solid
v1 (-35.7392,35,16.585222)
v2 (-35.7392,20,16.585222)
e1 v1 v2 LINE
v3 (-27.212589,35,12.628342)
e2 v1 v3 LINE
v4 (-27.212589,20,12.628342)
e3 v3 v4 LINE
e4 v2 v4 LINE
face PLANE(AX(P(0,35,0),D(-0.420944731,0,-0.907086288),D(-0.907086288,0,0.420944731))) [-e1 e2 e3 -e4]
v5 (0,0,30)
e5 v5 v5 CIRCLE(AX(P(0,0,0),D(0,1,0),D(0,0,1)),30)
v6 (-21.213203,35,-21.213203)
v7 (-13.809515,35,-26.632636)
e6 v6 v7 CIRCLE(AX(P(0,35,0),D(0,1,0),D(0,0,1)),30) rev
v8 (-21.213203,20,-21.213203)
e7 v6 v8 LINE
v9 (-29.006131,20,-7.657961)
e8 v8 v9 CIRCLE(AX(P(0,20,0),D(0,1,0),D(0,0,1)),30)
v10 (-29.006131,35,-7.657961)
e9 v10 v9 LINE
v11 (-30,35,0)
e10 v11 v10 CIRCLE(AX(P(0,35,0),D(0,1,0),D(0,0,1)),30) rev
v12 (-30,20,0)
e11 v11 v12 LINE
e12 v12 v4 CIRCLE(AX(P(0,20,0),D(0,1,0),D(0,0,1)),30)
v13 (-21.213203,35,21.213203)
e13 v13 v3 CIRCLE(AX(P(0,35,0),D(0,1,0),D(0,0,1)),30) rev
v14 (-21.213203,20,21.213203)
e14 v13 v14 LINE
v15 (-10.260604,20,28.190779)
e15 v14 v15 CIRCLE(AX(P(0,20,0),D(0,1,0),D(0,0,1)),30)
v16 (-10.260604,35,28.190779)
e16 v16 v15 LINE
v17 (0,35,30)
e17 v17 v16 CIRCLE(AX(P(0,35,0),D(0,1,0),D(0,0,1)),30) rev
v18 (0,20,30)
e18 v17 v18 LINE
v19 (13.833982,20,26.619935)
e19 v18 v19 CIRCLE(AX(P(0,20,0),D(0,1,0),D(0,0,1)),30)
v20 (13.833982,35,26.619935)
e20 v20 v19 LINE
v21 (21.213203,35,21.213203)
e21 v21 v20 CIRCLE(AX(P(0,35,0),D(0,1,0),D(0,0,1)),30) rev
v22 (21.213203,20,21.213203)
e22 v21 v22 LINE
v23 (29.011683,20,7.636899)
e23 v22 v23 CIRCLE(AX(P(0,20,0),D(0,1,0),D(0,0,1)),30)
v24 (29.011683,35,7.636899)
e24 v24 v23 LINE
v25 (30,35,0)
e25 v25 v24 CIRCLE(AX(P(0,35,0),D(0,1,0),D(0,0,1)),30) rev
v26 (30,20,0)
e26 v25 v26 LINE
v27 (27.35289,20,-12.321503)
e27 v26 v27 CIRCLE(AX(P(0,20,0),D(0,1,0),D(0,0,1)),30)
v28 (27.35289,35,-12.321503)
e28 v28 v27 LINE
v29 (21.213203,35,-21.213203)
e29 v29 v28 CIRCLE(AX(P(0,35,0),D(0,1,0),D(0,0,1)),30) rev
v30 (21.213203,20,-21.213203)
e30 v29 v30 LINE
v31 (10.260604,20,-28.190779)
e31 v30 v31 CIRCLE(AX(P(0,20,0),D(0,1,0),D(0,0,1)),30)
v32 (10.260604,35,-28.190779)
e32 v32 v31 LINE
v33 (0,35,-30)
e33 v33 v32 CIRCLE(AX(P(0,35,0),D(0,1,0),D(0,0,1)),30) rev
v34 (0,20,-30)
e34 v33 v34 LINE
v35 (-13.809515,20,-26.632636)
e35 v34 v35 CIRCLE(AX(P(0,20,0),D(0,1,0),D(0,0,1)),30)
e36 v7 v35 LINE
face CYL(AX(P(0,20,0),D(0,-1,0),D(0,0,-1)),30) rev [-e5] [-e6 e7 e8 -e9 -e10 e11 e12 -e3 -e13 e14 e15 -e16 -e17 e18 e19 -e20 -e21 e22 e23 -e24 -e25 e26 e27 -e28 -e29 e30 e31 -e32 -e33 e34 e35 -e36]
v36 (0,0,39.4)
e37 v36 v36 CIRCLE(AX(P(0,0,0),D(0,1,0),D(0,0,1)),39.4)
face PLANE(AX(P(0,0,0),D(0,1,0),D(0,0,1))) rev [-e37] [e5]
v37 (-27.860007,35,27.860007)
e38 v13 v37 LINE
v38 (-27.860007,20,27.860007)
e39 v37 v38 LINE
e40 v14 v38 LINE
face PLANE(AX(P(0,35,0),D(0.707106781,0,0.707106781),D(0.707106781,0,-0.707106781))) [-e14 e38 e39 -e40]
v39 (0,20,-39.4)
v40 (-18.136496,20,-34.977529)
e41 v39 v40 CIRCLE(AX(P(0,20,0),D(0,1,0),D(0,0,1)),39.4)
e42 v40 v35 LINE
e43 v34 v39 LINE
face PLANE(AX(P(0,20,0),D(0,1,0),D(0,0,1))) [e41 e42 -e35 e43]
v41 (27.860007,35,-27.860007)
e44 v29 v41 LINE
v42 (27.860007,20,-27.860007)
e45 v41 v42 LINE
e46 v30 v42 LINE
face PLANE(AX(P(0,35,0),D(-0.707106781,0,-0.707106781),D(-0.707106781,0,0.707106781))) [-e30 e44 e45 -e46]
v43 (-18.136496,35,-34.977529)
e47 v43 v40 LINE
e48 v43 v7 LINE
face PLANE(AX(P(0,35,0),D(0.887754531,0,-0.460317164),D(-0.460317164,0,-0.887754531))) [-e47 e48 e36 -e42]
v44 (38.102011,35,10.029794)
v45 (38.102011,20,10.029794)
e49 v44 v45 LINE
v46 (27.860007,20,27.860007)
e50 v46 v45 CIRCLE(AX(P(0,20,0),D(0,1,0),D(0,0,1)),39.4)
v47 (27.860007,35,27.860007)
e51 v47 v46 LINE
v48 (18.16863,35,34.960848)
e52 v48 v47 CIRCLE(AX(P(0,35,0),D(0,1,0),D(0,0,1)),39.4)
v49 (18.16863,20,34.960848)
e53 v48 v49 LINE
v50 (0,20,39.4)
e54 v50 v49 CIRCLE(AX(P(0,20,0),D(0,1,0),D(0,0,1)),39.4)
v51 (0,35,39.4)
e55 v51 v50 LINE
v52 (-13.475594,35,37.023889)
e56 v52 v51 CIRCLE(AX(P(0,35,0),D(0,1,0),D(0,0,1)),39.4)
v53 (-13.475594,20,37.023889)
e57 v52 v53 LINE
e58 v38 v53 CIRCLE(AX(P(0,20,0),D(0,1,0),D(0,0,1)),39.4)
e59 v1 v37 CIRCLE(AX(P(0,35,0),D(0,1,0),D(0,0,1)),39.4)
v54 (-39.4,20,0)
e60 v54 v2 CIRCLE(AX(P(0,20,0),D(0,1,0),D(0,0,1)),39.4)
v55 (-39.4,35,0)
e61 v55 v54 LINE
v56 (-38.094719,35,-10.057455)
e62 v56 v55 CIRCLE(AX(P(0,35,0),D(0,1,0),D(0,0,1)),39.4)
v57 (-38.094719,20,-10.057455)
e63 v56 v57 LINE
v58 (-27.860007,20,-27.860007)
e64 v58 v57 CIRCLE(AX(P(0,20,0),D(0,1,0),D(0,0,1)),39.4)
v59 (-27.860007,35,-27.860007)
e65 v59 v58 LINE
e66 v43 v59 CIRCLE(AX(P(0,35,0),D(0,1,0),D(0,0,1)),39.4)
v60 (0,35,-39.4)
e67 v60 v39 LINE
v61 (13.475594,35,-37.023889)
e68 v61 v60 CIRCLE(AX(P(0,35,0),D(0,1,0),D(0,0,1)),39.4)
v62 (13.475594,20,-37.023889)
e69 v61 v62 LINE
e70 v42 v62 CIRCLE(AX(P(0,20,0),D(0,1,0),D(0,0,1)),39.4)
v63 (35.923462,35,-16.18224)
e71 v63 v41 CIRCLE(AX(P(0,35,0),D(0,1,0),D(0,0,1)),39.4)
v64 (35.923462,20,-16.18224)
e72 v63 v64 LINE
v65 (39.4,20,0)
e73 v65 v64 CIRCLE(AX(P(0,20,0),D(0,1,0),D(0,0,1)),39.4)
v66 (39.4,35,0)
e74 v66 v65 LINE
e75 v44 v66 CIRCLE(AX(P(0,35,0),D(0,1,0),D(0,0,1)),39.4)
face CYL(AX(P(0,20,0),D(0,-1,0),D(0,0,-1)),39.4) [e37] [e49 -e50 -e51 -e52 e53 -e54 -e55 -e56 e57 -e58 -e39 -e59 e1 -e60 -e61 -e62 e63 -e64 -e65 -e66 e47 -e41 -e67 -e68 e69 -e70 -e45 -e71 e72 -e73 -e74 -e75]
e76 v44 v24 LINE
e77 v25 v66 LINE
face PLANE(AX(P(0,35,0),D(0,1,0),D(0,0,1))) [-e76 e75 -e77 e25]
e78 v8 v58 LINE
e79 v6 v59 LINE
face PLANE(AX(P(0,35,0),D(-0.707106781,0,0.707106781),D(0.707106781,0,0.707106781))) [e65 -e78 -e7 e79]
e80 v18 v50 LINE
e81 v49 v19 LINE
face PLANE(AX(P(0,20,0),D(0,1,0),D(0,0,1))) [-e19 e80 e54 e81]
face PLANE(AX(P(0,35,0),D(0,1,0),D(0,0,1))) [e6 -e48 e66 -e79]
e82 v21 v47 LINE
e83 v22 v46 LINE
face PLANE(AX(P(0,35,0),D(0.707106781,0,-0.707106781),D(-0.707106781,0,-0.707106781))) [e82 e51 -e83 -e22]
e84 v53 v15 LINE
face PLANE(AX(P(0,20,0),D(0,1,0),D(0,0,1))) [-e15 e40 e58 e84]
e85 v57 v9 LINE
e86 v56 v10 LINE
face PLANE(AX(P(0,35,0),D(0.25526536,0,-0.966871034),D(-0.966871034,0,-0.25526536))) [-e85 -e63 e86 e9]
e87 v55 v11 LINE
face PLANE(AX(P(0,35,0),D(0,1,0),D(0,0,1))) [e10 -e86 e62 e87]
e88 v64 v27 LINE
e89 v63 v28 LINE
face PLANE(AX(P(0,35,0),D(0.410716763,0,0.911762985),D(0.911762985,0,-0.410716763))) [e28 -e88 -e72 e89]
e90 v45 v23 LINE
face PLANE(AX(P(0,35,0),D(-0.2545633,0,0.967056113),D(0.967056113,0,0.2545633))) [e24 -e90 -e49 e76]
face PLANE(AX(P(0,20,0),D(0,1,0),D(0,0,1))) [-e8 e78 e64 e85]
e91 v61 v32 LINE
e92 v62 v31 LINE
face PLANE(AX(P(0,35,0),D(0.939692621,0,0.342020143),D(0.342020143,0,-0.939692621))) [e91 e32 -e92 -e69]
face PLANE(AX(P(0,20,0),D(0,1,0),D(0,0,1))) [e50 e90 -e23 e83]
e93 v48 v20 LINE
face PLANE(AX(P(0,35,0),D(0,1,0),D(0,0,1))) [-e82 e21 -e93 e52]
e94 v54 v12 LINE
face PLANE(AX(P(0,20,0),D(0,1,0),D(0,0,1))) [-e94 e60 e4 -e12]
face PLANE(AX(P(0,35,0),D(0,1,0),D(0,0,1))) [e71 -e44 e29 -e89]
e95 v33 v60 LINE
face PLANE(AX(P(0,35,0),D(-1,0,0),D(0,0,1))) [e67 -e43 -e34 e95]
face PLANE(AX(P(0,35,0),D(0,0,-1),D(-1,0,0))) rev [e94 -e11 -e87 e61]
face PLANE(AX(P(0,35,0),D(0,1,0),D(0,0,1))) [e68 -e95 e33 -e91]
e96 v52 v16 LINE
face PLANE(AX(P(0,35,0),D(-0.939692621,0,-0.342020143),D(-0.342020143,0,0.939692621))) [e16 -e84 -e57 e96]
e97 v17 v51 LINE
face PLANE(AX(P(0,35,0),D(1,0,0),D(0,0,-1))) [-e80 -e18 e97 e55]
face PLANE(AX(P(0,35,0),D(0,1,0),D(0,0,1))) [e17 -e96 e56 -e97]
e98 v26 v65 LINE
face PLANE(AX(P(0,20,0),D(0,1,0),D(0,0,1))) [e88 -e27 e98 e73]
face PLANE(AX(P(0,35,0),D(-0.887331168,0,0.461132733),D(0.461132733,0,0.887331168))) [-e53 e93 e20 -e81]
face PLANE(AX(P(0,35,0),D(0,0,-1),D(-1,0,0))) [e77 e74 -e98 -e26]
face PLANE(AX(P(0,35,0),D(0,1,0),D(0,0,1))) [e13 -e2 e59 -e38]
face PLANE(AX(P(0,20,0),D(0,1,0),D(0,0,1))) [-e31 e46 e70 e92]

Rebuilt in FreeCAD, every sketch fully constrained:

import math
import FreeCAD as App
import Part
import Sketcher

V = App.Vector
Q = App.Units.Quantity

doc = App.newDocument("Part")
body = doc.addObject("PartDesign::Body", "Body")

# Sketch on XZ plane
sketch1 = body.newObject("Sketcher::SketchObject", "Sketch")
sketch1.AttachmentSupport = (doc.getObject("XZ_Plane"), [""])
sketch1.MapMode = "FlatFace"
sketch1.addGeometry([
    Part.Circle(V(0, 0, 0), V(0, 0, 1), 39.4),
    Part.Circle(V(0, 0, 0), V(0, 0, 1), 30),
], False)
sketch1.addConstraint([
    Sketcher.Constraint("Coincident", 0, 3, -1, 1),
    Sketcher.Constraint("Coincident", 1, 3, -1, 1),
    Sketcher.Constraint("Diameter", 1, Q("60 mm")),
    Sketcher.Constraint("Diameter", 0, Q("78.8 mm")),
])
pad1 = body.newObject("PartDesign::Pad", "Pad")
pad1.Profile = sketch1
pad1.Length = 20
pad1.Reversed = True

# Sketch on XZ plane
sketch2 = body.newObject("Sketcher::SketchObject", "Sketch001")
sketch2.AttachmentSupport = (doc.getObject("XZ_Plane"), [""])
sketch2.MapMode = "FlatFace"
sketch2.AttachmentOffset = App.Placement(V(0, 0, -20), App.Rotation())
sketch2.addGeometry([
    Part.LineSegment(V(-29.006131, -7.657961, 0), V(-38.094719, -10.057455, 0)),  # 0
    Part.ArcOfCircle(Part.Circle(V(0, 0, 0), V(0, 0, 1), 39.4), math.radians(180), math.radians(194.78931)),  # 1
    Part.LineSegment(V(-39.4, 0, 0), V(-30, 0, 0)),  # 2
    Part.ArcOfCircle(Part.Circle(V(0, 0, 0), V(0, 0, 1), 30), math.radians(-180), math.radians(-165.21069)),  # 3
    Part.LineSegment(V(-27.212589, 12.628342, 0), V(-35.7392, 16.585222, 0)),  # 4
    Part.ArcOfCircle(Part.Circle(V(0, 0, 0), V(0, 0, 1), 39.4), math.radians(135), math.radians(155.105753)),  # 5
    Part.LineSegment(V(-27.860007, 27.860007, 0), V(-21.213203, 21.213203, 0)),  # 6
    Part.ArcOfCircle(Part.Circle(V(0, 0, 0), V(0, 0, 1), 30), math.radians(135), math.radians(155.105753)),  # 7
    Part.LineSegment(V(-10.260604, 28.190779, 0), V(-13.475594, 37.023889, 0)),  # 8
    Part.ArcOfCircle(Part.Circle(V(0, 0, 0), V(0, 0, 1), 39.4), math.radians(90), math.radians(110)),  # 9
    Part.LineSegment(V(0, 39.4, 0), V(0, 30, 0)),  # 10
    Part.ArcOfCircle(Part.Circle(V(0, 0, 0), V(0, 0, 1), 30), math.radians(90), math.radians(110)),  # 11
    Part.LineSegment(V(13.833982, 26.619935, 0), V(18.16863, 34.960848, 0)),  # 12
    Part.ArcOfCircle(Part.Circle(V(0, 0, 0), V(0, 0, 1), 39.4), math.radians(45), math.radians(62.539775)),  # 13
    Part.LineSegment(V(27.860007, 27.860007, 0), V(21.213203, 21.213203, 0)),  # 14
    Part.ArcOfCircle(Part.Circle(V(0, 0, 0), V(0, 0, 1), 30), math.radians(45), math.radians(62.539775)),  # 15
    Part.LineSegment(V(39.4, 0, 0), V(30, 0, 0)),  # 16
    Part.ArcOfCircle(Part.Circle(V(0, 0, 0), V(0, 0, 1), 30), math.radians(0), math.radians(14.74771)),  # 17
    Part.LineSegment(V(29.011683, 7.636899, 0), V(38.102011, 10.029794, 0)),  # 18
    Part.ArcOfCircle(Part.Circle(V(0, 0, 0), V(0, 0, 1), 39.4), math.radians(0), math.radians(14.74771)),  # 19
    Part.LineSegment(V(27.860007, -27.860007, 0), V(21.213203, -21.213203, 0)),  # 20
    Part.ArcOfCircle(Part.Circle(V(0, 0, 0), V(0, 0, 1), 30), math.radians(-45), math.radians(-24.249869)),  # 21
    Part.LineSegment(V(27.35289, -12.321503, 0), V(35.923462, -16.18224, 0)),  # 22
    Part.ArcOfCircle(Part.Circle(V(0, 0, 0), V(0, 0, 1), 39.4), math.radians(-45), math.radians(-24.249869)),  # 23
    Part.ArcOfCircle(Part.Circle(V(0, 0, 0), V(0, 0, 1), 39.4), math.radians(-90), math.radians(-70)),  # 24
    Part.LineSegment(V(0, -39.4, 0), V(0, -30, 0)),  # 25
    Part.ArcOfCircle(Part.Circle(V(0, 0, 0), V(0, 0, 1), 30), math.radians(-90), math.radians(-70)),  # 26
    Part.LineSegment(V(10.260604, -28.190779, 0), V(13.475594, -37.023889, 0)),  # 27
    Part.ArcOfCircle(Part.Circle(V(0, 0, 0), V(0, 0, 1), 39.4), math.radians(-135), math.radians(-117.407575)),  # 28
    Part.LineSegment(V(-27.860007, -27.860007, 0), V(-21.213203, -21.213203, 0)),  # 29
    Part.ArcOfCircle(Part.Circle(V(0, 0, 0), V(0, 0, 1), 30), math.radians(-135), math.radians(-117.407575)),  # 30
    Part.LineSegment(V(-13.809515, -26.632636, 0), V(-18.136496, -34.977529, 0)),  # 31
], False)
sketch2.addConstraint([
    Sketcher.Constraint("Coincident", 0, 2, 1, 2),
    Sketcher.Constraint("Coincident", 1, 1, 2, 1),
    Sketcher.Constraint("Coincident", 2, 2, 3, 1),
    Sketcher.Constraint("Coincident", 3, 2, 0, 1),
    Sketcher.Constraint("Coincident", 4, 2, 5, 2),
    Sketcher.Constraint("Coincident", 5, 1, 6, 1),
    Sketcher.Constraint("Coincident", 6, 2, 7, 1),
    Sketcher.Constraint("Coincident", 7, 2, 4, 1),
    Sketcher.Constraint("Coincident", 8, 2, 9, 2),
    Sketcher.Constraint("Coincident", 9, 1, 10, 1),
    Sketcher.Constraint("Coincident", 10, 2, 11, 1),
    Sketcher.Constraint("Coincident", 11, 2, 8, 1),
    Sketcher.Constraint("Coincident", 12, 2, 13, 2),
    Sketcher.Constraint("Coincident", 13, 1, 14, 1),
    Sketcher.Constraint("Coincident", 14, 2, 15, 1),
    Sketcher.Constraint("Coincident", 15, 2, 12, 1),
    Sketcher.Constraint("Coincident", 16, 2, 17, 1),
    Sketcher.Constraint("Coincident", 17, 2, 18, 1),
    Sketcher.Constraint("Coincident", 18, 2, 19, 2),
    Sketcher.Constraint("Coincident", 19, 1, 16, 1),
    Sketcher.Constraint("Coincident", 20, 2, 21, 1),
    Sketcher.Constraint("Coincident", 21, 2, 22, 1),
    Sketcher.Constraint("Coincident", 22, 2, 23, 2),
    Sketcher.Constraint("Coincident", 23, 1, 20, 1),
    Sketcher.Constraint("Coincident", 24, 1, 25, 1),
    Sketcher.Constraint("Coincident", 25, 2, 26, 1),
    Sketcher.Constraint("Coincident", 26, 2, 27, 1),
    Sketcher.Constraint("Coincident", 27, 2, 24, 2),
    Sketcher.Constraint("Coincident", 28, 1, 29, 1),
    Sketcher.Constraint("Coincident", 29, 2, 30, 1),
    Sketcher.Constraint("Coincident", 30, 2, 31, 1),
    Sketcher.Constraint("Coincident", 31, 2, 28, 2),
    Sketcher.Constraint("Horizontal", 2),
    Sketcher.Constraint("Vertical", 10),
    Sketcher.Constraint("Horizontal", 16),
    Sketcher.Constraint("Vertical", 25),
    Sketcher.Constraint("Coincident", 1, 3, -1, 1),
    Sketcher.Constraint("Coincident", 3, 3, -1, 1),
    Sketcher.Constraint("Coincident", 5, 3, -1, 1),
    Sketcher.Constraint("Coincident", 7, 3, -1, 1),
    Sketcher.Constraint("Coincident", 9, 3, -1, 1),
    Sketcher.Constraint("Coincident", 11, 3, -1, 1),
    Sketcher.Constraint("Coincident", 13, 3, -1, 1),
    Sketcher.Constraint("Coincident", 15, 3, -1, 1),
    Sketcher.Constraint("Coincident", 17, 3, -1, 1),
    Sketcher.Constraint("Coincident", 19, 3, -1, 1),
    Sketcher.Constraint("Coincident", 21, 3, -1, 1),
    Sketcher.Constraint("Coincident", 23, 3, -1, 1),
    Sketcher.Constraint("Coincident", 24, 3, -1, 1),
    Sketcher.Constraint("Coincident", 26, 3, -1, 1),
    Sketcher.Constraint("Coincident", 28, 3, -1, 1),
    Sketcher.Constraint("Coincident", 30, 3, -1, 1),
    Sketcher.Constraint("Equal", 1, 5),
    Sketcher.Constraint("Equal", 3, 7),
    Sketcher.Constraint("Equal", 5, 9),
    Sketcher.Constraint("Equal", 7, 11),
    Sketcher.Constraint("Equal", 9, 13),
    Sketcher.Constraint("Equal", 11, 15),
    Sketcher.Constraint("Equal", 15, 17),
    Sketcher.Constraint("Equal", 13, 19),
    Sketcher.Constraint("Equal", 17, 21),
    Sketcher.Constraint("Equal", 19, 23),
    Sketcher.Constraint("Equal", 23, 24),
    Sketcher.Constraint("Equal", 21, 26),
    Sketcher.Constraint("Equal", 24, 28),
    Sketcher.Constraint("Equal", 26, 30),
    Sketcher.Constraint("PointOnObject", 1, 1, -1),
    Sketcher.Constraint("PointOnObject", 9, 1, -2),
    Sketcher.Constraint("PointOnObject", 16, 2, -1),
    Sketcher.Constraint("PointOnObject", 24, 1, -2),
    Sketcher.Constraint("Perpendicular", 6, 14),
    Sketcher.Constraint("Perpendicular", 14, 20),
    Sketcher.Constraint("Parallel", 8, 27),
    Sketcher.Constraint("Perpendicular", 20, 29),
    Sketcher.Constraint("Horizontal", 5, 1, 13, 1),
    Sketcher.Constraint("Horizontal", 6, 2, 14, 2),
    Sketcher.Constraint("Horizontal", 23, 1, 28, 1),
    Sketcher.Constraint("Vertical", 14, 2, 20, 2),
    Sketcher.Constraint("Radius", 3, Q("30 mm")),
    Sketcher.Constraint("Radius", 1, Q("39.4 mm")),
    Sketcher.Constraint("Angle", 8, Q("110 deg")),
    Sketcher.Constraint("DistanceX", 4, 2, -1, 1, Q("35.7392 mm")),
    Sketcher.Constraint("DistanceY", -1, 1, 17, 2, Q("7.636899 mm")),
    Sketcher.Constraint("DistanceX", 6, 2, 11, 2, Q("10.952599 mm")),
    Sketcher.Constraint("DistanceX", 15, 2, 17, 2, Q("15.177701 mm")),
    Sketcher.Constraint("DistanceY", 20, 2, 21, 2, Q("8.891701 mm")),
    Sketcher.Constraint("DistanceY", 21, 2, 17, 2, Q("19.958402 mm")),
    Sketcher.Constraint("DistanceX", 26, 2, 20, 2, Q("10.952599 mm")),
    Sketcher.Constraint("DistanceX", 0, 2, -1, 1, Q("38.094719 mm")),
    Sketcher.Constraint("DistanceX", 3, 2, -1, 1, Q("29.006131 mm")),
    Sketcher.Constraint("DistanceX", 7, 2, -1, 1, Q("27.212589 mm")),
    Sketcher.Constraint("DistanceX", -1, 1, 12, 2, Q("18.16863 mm")),
    Sketcher.Constraint("DistanceX", -1, 1, 18, 2, Q("38.102011 mm")),
    Sketcher.Constraint("DistanceX", -1, 1, 22, 2, Q("35.923462 mm")),
    Sketcher.Constraint("DistanceY", 31, 2, -1, 1, Q("34.977529 mm")),
    Sketcher.Constraint("DistanceX", 29, 2, 30, 2, Q("7.403689 mm")),
])
pad2 = body.newObject("PartDesign::Pad", "Pad001")
pad2.Profile = sketch2
pad2.Length = 15
pad2.Reversed = True

doc.recompute()
